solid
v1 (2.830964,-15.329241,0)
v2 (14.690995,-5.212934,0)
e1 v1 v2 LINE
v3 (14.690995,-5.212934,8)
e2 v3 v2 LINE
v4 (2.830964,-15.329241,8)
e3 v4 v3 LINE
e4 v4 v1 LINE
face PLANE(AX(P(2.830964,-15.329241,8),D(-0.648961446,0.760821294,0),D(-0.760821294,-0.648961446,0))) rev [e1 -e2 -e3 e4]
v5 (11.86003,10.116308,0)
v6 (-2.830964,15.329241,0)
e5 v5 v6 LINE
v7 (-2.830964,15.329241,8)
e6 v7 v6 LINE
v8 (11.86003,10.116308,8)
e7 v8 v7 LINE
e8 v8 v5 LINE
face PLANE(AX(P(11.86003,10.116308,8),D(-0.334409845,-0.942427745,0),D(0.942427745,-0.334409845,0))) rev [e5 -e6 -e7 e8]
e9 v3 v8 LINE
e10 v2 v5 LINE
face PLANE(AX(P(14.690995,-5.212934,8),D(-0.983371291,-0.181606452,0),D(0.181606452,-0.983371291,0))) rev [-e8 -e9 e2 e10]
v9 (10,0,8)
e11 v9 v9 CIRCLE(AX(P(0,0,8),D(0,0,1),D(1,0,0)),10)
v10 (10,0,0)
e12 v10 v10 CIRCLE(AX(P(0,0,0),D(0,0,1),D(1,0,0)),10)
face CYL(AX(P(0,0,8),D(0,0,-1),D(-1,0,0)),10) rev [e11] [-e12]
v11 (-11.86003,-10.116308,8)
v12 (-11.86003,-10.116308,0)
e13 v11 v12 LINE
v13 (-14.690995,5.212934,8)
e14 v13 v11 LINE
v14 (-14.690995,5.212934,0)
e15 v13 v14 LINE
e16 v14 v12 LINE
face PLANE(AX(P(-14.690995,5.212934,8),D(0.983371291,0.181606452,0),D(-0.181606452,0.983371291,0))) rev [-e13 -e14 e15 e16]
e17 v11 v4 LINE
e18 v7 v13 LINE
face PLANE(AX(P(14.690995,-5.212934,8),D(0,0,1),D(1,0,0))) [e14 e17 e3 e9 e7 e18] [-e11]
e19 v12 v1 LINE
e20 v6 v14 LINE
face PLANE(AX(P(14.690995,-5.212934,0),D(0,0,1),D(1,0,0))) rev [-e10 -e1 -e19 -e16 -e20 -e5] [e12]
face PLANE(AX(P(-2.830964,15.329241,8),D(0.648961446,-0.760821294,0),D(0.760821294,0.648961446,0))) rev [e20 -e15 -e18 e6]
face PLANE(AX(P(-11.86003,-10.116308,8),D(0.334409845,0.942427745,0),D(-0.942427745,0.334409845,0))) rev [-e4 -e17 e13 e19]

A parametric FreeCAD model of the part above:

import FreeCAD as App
import Part
import Sketcher
from FreeCAD import Vector
Q = App.Units.Quantity


def add_polygon(sketch, points):
    """Adds a closed chain of lines whose ends are joined by coincident constraints."""
    first, n = sketch.GeometryCount, len(points)
    for a, b in zip(points, points[1:] + points[:1]):
        sketch.addGeometry(Part.LineSegment(App.Vector(*a, 0), App.Vector(*b, 0)), False)
    for i in range(n):
        sketch.addConstraint(Sketcher.Constraint("Coincident", first + i, 2, first + (i + 1) % n, 1))

doc = App.newDocument("Part")
body = doc.addObject("PartDesign::Body", "Body")

# Sketch on XY plane
sketch1 = body.newObject("Sketcher::SketchObject", "Sketch")
sketch1.AttachmentSupport = (doc.getObject("XY_Plane"), [""])
sketch1.MapMode = "FlatFace"
add_polygon(sketch1, [(15, -5), (12, 10), (-3, 15), (-15, 5), (-12, -10), (3, -15)])  # lines 0-5
sketch1.addGeometry(Part.Circle(Vector(0, 0, 0), Vector(0, 0, 1), 10), False)  # 6
sketch1.addConstraint(Sketcher.Constraint("Coincident", 6, 3, -1, 1))
sketch1.addConstraint(Sketcher.Constraint("Symmetric", 0, 2, 3, 2, -1, 1))
sketch1.addConstraint(Sketcher.Constraint("Symmetric", 1, 2, 4, 2, -1, 1))
sketch1.addConstraint(Sketcher.Constraint("Symmetric", 2, 2, 5, 2, -1, 1))
sketch1.addConstraint(Sketcher.Constraint("Equal", 0, 1))
sketch1.addConstraint(Sketcher.Constraint("Equal", 1, 2))
sketch1.addConstraint(Sketcher.Constraint("Diameter", 6, Q("20 mm")))
sketch1.addConstraint(Sketcher.Constraint("DistanceX", -1, 1, 0, 2, Q("11.86003 mm")))
sketch1.addConstraint(Sketcher.Constraint("DistanceY", -1, 1, 1, 2, Q("15.329241 mm")))
sketch1.addConstraint(Sketcher.Constraint("DistanceX", 2, 2, 1, 2, Q("11.86003 mm")))
sketch1.addConstraint(Sketcher.Constraint("DistanceY", 3, 2, 2, 2, Q("15.329241 mm")))
pad1 = body.newObject("PartDesign::Pad", "Pad")
pad1.Profile = sketch1
pad1.Length = 8

doc.recompute()
